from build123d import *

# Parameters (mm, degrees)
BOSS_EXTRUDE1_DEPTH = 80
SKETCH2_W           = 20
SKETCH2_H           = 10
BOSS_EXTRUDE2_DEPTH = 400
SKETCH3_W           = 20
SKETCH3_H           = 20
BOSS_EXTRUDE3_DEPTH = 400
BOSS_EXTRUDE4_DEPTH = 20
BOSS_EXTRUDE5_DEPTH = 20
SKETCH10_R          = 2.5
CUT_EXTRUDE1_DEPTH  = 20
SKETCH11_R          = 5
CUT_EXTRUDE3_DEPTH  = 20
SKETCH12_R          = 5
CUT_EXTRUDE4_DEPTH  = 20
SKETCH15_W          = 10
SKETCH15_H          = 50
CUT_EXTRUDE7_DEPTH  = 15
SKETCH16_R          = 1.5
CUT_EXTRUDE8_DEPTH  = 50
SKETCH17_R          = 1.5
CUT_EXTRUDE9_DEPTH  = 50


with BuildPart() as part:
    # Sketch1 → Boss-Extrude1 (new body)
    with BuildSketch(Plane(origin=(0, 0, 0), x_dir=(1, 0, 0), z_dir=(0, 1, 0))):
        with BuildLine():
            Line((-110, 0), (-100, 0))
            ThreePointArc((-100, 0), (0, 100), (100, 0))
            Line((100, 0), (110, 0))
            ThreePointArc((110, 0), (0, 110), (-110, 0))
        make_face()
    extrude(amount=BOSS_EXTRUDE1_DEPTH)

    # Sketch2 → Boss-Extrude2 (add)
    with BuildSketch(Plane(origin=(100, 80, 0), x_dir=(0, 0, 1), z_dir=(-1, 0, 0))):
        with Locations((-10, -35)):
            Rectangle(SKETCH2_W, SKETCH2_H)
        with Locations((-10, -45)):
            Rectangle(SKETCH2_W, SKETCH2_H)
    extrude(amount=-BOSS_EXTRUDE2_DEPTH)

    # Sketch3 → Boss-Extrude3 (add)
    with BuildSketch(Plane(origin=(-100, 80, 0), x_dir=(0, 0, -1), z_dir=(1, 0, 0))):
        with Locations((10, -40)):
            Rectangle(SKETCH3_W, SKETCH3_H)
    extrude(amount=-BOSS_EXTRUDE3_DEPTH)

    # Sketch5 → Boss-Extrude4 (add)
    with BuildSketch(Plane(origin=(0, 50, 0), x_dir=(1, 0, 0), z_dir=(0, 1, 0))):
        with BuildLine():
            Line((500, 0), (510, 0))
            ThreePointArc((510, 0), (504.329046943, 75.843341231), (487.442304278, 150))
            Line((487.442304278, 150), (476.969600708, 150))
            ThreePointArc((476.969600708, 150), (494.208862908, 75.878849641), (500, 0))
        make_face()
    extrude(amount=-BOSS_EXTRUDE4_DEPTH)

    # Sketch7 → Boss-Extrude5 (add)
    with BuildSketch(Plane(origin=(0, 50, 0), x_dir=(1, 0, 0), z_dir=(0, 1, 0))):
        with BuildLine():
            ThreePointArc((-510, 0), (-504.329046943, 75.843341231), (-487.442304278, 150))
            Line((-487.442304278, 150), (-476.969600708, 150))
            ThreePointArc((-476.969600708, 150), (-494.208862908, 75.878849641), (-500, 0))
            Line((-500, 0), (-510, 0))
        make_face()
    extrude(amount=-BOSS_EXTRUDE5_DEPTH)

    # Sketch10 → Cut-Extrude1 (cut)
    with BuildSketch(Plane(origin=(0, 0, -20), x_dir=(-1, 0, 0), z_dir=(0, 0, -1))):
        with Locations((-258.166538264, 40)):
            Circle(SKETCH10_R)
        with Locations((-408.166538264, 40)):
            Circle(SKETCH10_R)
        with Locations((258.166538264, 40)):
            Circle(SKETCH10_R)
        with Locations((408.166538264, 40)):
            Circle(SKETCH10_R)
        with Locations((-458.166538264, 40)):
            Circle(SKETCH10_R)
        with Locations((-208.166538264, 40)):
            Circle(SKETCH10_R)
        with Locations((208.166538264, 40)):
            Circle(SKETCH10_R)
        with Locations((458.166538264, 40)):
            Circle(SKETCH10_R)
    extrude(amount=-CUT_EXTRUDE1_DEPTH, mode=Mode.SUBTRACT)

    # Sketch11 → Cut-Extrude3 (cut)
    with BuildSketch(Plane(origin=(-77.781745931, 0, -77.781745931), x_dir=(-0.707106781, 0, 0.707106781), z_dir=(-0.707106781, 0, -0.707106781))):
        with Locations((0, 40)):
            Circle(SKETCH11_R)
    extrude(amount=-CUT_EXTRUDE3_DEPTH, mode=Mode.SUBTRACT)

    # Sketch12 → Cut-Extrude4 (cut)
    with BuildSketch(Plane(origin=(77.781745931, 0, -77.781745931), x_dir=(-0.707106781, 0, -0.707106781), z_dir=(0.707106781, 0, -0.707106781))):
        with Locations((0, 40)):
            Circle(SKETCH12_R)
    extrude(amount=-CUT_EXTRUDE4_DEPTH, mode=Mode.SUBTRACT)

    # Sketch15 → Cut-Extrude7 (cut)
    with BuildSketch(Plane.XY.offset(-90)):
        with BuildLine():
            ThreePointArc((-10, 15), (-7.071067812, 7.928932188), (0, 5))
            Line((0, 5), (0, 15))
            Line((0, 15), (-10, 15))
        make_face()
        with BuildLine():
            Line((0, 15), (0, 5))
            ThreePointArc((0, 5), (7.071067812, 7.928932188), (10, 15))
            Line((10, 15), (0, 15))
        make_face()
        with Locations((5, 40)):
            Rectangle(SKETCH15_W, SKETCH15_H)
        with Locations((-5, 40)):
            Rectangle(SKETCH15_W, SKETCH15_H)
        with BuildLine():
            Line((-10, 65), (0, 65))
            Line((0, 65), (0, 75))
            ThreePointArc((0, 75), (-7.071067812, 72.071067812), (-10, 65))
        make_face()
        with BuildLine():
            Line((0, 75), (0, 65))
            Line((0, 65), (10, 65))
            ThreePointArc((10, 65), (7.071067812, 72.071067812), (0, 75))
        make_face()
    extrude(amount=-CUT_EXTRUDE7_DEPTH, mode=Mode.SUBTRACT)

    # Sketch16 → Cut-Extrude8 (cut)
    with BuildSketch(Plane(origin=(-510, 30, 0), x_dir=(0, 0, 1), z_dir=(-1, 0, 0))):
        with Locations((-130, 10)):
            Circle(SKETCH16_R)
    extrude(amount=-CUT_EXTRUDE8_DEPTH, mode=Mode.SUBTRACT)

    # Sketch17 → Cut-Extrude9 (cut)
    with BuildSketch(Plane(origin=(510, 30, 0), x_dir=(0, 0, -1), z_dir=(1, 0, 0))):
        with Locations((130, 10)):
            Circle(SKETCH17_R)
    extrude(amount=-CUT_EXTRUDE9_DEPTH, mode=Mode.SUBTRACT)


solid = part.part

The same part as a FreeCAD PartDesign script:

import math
import FreeCAD as App
import Part
import Sketcher
from FreeCAD import Vector

doc = App.newDocument("Part")
body = doc.addObject("PartDesign::Body", "Body")

# Sketch on XZ plane
sketch1 = body.newObject("Sketcher::SketchObject", "Sketch")
sketch1.AttachmentSupport = (doc.getObject("XZ_Plane"), [""])
sketch1.MapMode = "FlatFace"
sketch1.addGeometry([
    Part.LineSegment(Vector(-110, 0, 0), Vector(-100, 0, 0)),
    Part.ArcOfCircle(Part.Circle(Vector(0, 0, 0), Vector(0, 0, 1), 100), math.radians(180), math.radians(360)),
    Part.LineSegment(Vector(100, 0, 0), Vector(110, 0, 0)),
    Part.ArcOfCircle(Part.Circle(Vector(0, 0, 0), Vector(0, 0, 1), 110), math.radians(180), math.radians(360)),
], False)
sketch1.addConstraint([
    Sketcher.Constraint("Coincident", 0, 2, 1, 1),
    Sketcher.Constraint("Coincident", 1, 2, 2, 1),
    Sketcher.Constraint("Coincident", 2, 2, 3, 2),
    Sketcher.Constraint("Coincident", 3, 1, 0, 1),
    Sketcher.Constraint("Horizontal", 0),
    Sketcher.Constraint("Horizontal", 2),
    Sketcher.Constraint("Coincident", 1, 3, -1, 1),
    Sketcher.Constraint("Coincident", 3, 3, -1, 1),
    Sketcher.Constraint("PointOnObject", 0, 2, -1),
    Sketcher.Constraint("PointOnObject", 1, 2, -1),
    Sketcher.Constraint("Radius", 1, 100.0),
    Sketcher.Constraint("Radius", 3, 110.0),
])
pad1 = body.newObject("PartDesign::Pad", "Pad")
pad1.Profile = sketch1
pad1.Length = 80
pad1.Reversed = True

# Sketch on YZ plane
sketch2 = body.newObject("Sketcher::SketchObject", "Sketch001")
sketch2.AttachmentSupport = (doc.getObject("YZ_Plane"), [""])
sketch2.MapMode = "FlatFace"
sketch2.AttachmentOffset = App.Placement(Vector(0, 0, 100), App.Rotation())
sketch2.addGeometry([
    Part.LineSegment(Vector(50, -20, 0), Vector(30, -20, 0)),
    Part.LineSegment(Vector(30, -20, 0), Vector(30, 0, 0)),
    Part.LineSegment(Vector(30, 0, 0), Vector(50, 0, 0)),
    Part.LineSegment(Vector(50, 0, 0), Vector(50, -20, 0)),
], False)
sketch2.addConstraint([
    Sketcher.Constraint("Coincident", 0, 2, 1, 1),
    Sketcher.Constraint("Coincident", 1, 2, 2, 1),
    Sketcher.Constraint("Coincident", 2, 2, 3, 1),
    Sketcher.Constraint("Coincident", 3, 2, 0, 1),
    Sketcher.Constraint("Horizontal", 0),
    Sketcher.Constraint("Vertical", 1),
    Sketcher.Constraint("Horizontal", 2),
    Sketcher.Constraint("Vertical", 3),
    Sketcher.Constraint("PointOnObject", 1, 2, -1),
    Sketcher.Constraint("Equal", 2, 1),
    Sketcher.Constraint("DistanceX", 0, 2, 0, 1, 20.0),
    Sketcher.Constraint("DistanceX", -1, 1, 0, 2, 30.0),
])
pad2 = body.newObject("PartDesign::Pad", "Pad001")
pad2.Profile = sketch2
pad2.Length = 400

# Sketch on YZ plane
sketch3 = body.newObject("Sketcher::SketchObject", "Sketch002")
sketch3.AttachmentSupport = (doc.getObject("YZ_Plane"), [""])
sketch3.MapMode = "FlatFace"
sketch3.AttachmentOffset = App.Placement(Vector(0, 0, -100), App.Rotation())
sketch3.addGeometry([
    Part.LineSegment(Vector(50, 0, 0), Vector(30, 0, 0)),
    Part.LineSegment(Vector(30, 0, 0), Vector(30, -20, 0)),
    Part.LineSegment(Vector(30, -20, 0), Vector(50, -20, 0)),
    Part.LineSegment(Vector(50, -20, 0), Vector(50, 0, 0)),
], False)
sketch3.addConstraint([
    Sketcher.Constraint("Coincident", 0, 2, 1, 1),
    Sketcher.Constraint("Coincident", 1, 2, 2, 1),
    Sketcher.Constraint("Coincident", 2, 2, 3, 1),
    Sketcher.Constraint("Coincident", 3, 2, 0, 1),
    Sketcher.Constraint("Horizontal", 0),
    Sketcher.Constraint("Vertical", 1),
    Sketcher.Constraint("Horizontal", 2),
    Sketcher.Constraint("Vertical", 3),
    Sketcher.Constraint("PointOnObject", 0, 2, -1),
    Sketcher.Constraint("Equal", 2, 1),
    Sketcher.Constraint("DistanceX", 0, 2, 0, 1, 20.0),
    Sketcher.Constraint("DistanceX", -1, 1, 0, 2, 30.0),
])
pad3 = body.newObject("PartDesign::Pad", "Pad002")
pad3.Profile = sketch3
pad3.Length = 400
pad3.Reversed = True

# Sketch on XZ plane
sketch4 = body.newObject("Sketcher::SketchObject", "Sketch003")
sketch4.AttachmentSupport = (doc.getObject("XZ_Plane"), [""])
sketch4.MapMode = "FlatFace"
sketch4.AttachmentOffset = App.Placement(Vector(0, 0, -50), App.Rotation())
sketch4.addGeometry([
    Part.LineSegment(Vector(500, 0, 0), Vector(510, 0, 0)),
    Part.ArcOfCircle(Part.Circle(Vector(0, 0, 0), Vector(0, 0, 1), 510), math.radians(-17.104635), math.radians(0)),
    Part.LineSegment(Vector(487.442304, -150, 0), Vector(476.969601, -150, 0)),
    Part.ArcOfCircle(Part.Circle(Vector(0, 0, 0), Vector(0, 0, 1), 500), math.radians(-17.457603), math.radians(0)),
], False)
sketch4.addConstraint([
    Sketcher.Constraint("Coincident", 0, 2, 1, 2),
    Sketcher.Constraint("Coincident", 1, 1, 2, 1),
    Sketcher.Constraint("Coincident", 2, 2, 3, 1),
    Sketcher.Constraint("Coincident", 3, 2, 0, 1),
    Sketcher.Constraint("Horizontal", 0),
    Sketcher.Constraint("Horizontal", 2),
    Sketcher.Constraint("Coincident", 1, 3, -1, 1),
    Sketcher.Constraint("Coincident", 3, 3, -1, 1),
    Sketcher.Constraint("PointOnObject", 0, 2, -1),
    Sketcher.Constraint("Radius", 1, 510.0),
    Sketcher.Constraint("Radius", 3, 500.0),
    Sketcher.Constraint("DistanceY", 2, 2, -1, 1, 150.0),
])
pad4 = body.newObject("PartDesign::Pad", "Pad003")
pad4.Profile = sketch4
pad4.Length = 20

# Sketch on XZ plane
sketch5 = body.newObject("Sketcher::SketchObject", "Sketch004")
sketch5.AttachmentSupport = (doc.getObject("XZ_Plane"), [""])
sketch5.MapMode = "FlatFace"
sketch5.AttachmentOffset = App.Placement(Vector(0, 0, -50), App.Rotation())
sketch5.addGeometry([
    Part.ArcOfCircle(Part.Circle(Vector(0, 0, 0), Vector(0, 0, 1), 510), math.radians(-180), math.radians(-162.895365)),
    Part.LineSegment(Vector(-510, 0, 0), Vector(-500, 0, 0)),
    Part.ArcOfCircle(Part.Circle(Vector(0, 0, 0), Vector(0, 0, 1), 500), math.radians(-180), math.radians(-162.542397)),
    Part.LineSegment(Vector(-476.969601, -150, 0), Vector(-487.442304, -150, 0)),
], False)
sketch5.addConstraint([
    Sketcher.Constraint("Coincident", 0, 1, 1, 1),
    Sketcher.Constraint("Coincident", 1, 2, 2, 1),
    Sketcher.Constraint("Coincident", 2, 2, 3, 1),
    Sketcher.Constraint("Coincident", 3, 2, 0, 2),
    Sketcher.Constraint("Horizontal", 1),
    Sketcher.Constraint("Horizontal", 3),
    Sketcher.Constraint("Coincident", 0, 3, -1, 1),
    Sketcher.Constraint("Coincident", 2, 3, -1, 1),
    Sketcher.Constraint("PointOnObject", 1, 2, -1),
    Sketcher.Constraint("Radius", 0, 510.0),
    Sketcher.Constraint("Radius", 2, 500.0),
    Sketcher.Constraint("DistanceY", 3, 2, -1, 1, 150.0),
])
pad5 = body.newObject("PartDesign::Pad", "Pad004")
pad5.Profile = sketch5
pad5.Length = 20

# Sketch on XY plane
sketch6 = body.newObject("Sketcher::SketchObject", "Sketch005")
sketch6.AttachmentSupport = (doc.getObject("XY_Plane"), [""])
sketch6.MapMode = "FlatFace"
sketch6.AttachmentOffset = App.Placement(Vector(0, 0, -20), App.Rotation())
sketch6.addGeometry([
    Part.Circle(Vector(258.166538, 40, 0), Vector(0, 0, 1), 2.5),  # 0
    Part.Circle(Vector(408.166538, 40, 0), Vector(0, 0, 1), 2.5),  # 1
    Part.Circle(Vector(-258.166538, 40, 0), Vector(0, 0, 1), 2.5),  # 2
    Part.Circle(Vector(-408.166538, 40, 0), Vector(0, 0, 1), 2.5),  # 3
    Part.Circle(Vector(458.166538, 40, 0), Vector(0, 0, 1), 2.5),  # 4
    Part.Circle(Vector(208.166538, 40, 0), Vector(0, 0, 1), 2.5),  # 5
    Part.Circle(Vector(-208.166538, 40, 0), Vector(0, 0, 1), 2.5),  # 6
    Part.Circle(Vector(-458.166538, 40, 0), Vector(0, 0, 1), 2.5),  # 7
], False)
sketch6.addConstraint([
    Sketcher.Constraint("Equal", 0, 1),
    Sketcher.Constraint("Equal", 1, 2),
    Sketcher.Constraint("Equal", 2, 3),
    Sketcher.Constraint("Equal", 3, 4),
    Sketcher.Constraint("Equal", 4, 5),
    Sketcher.Constraint("Equal", 5, 6),
    Sketcher.Constraint("Equal", 6, 7),
    Sketcher.Constraint("Symmetric", 0, 3, 2, 3, -2),
    Sketcher.Constraint("Symmetric", 1, 3, 3, 3, -2),
    Sketcher.Constraint("Symmetric", 5, 3, 6, 3, -2),
    Sketcher.Constraint("Symmetric", 4, 3, 7, 3, -2),
    Sketcher.Constraint("Horizontal", 0, 3, 1, 3),
    Sketcher.Constraint("Horizontal", 3, 3, 4, 3),
    Sketcher.Constraint("Horizontal", 4, 3, 5, 3),
    Sketcher.Constraint("Diameter", 0, 5.0),
    Sketcher.Constraint("DistanceY", -1, 1, 0, 3, 40.0),
    Sketcher.Constraint("DistanceX", 0, 3, 1, 3, 150.0),
    Sketcher.Constraint("DistanceX", 1, 3, 4, 3, 50.0),
    Sketcher.Constraint("DistanceX", 5, 3, 0, 3, 50.0),
    Sketcher.Constraint("DistanceX", -1, 1, 0, 3, 258.166538),
])
pocket1 = body.newObject("PartDesign::Pocket", "Pocket")
pocket1.Profile = sketch6
pocket1.Length = 20
pocket1.Reversed = True

# Sketch on an angled plane
sketch7 = body.newObject("Sketcher::SketchObject", "Sketch006")
sketch7.Placement = App.Placement(Vector(-77.781746, 0, -77.781746), App.Rotation(Vector(-0.707106781, 0, 0.707106781), Vector(0, 0.999999999, 0), Vector(-0.707106781, 0, -0.707106781), "ZXY"))
sketch7.addGeometry(Part.Circle(Vector(0, 40, 0), Vector(0, 0, 1), 5), False)
sketch7.addConstraint([
    Sketcher.Constraint("PointOnObject", 0, 3, -2),
    Sketcher.Constraint("Diameter", 0, 10.0),
    Sketcher.Constraint("DistanceY", -1, 1, 0, 3, 40.0),
])
pocket2 = body.newObject("PartDesign::Pocket", "Pocket001")
pocket2.Profile = sketch7
pocket2.Length = 20

# Sketch on an angled plane
sketch8 = body.newObject("Sketcher::SketchObject", "Sketch007")
sketch8.Placement = App.Placement(Vector(77.781746, 0, -77.781746), App.Rotation(Vector(-0.707106781, 0, -0.707106781), Vector(0, 0.999999999, 0), Vector(0.707106781, 0, -0.707106781), "ZXY"))
sketch8.addGeometry(Part.Circle(Vector(0, 40, 0), Vector(0, 0, 1), 5), False)
sketch8.addConstraint([
    Sketcher.Constraint("PointOnObject", 0, 3, -2),
    Sketcher.Constraint("Diameter", 0, 10.0),
    Sketcher.Constraint("DistanceY", -1, 1, 0, 3, 40.0),
])
pocket3 = body.newObject("PartDesign::Pocket", "Pocket002")
pocket3.Profile = sketch8
pocket3.Length = 20

# Sketch on XY plane
sketch9 = body.newObject("Sketcher::SketchObject", "Sketch008")
sketch9.AttachmentSupport = (doc.getObject("XY_Plane"), [""])
sketch9.MapMode = "FlatFace"
sketch9.AttachmentOffset = App.Placement(Vector(0, 0, -90), App.Rotation())
sketch9.addGeometry([
    Part.LineSegment(Vector(-10, 65, 0), Vector(-10, 15, 0)),  # 0
    Part.ArcOfCircle(Part.Circle(Vector(0, 15, 0), Vector(0, 0, 1), 10), math.radians(180), math.radians(270)),  # 1
    Part.ArcOfCircle(Part.Circle(Vector(0, 15, 0), Vector(0, 0, 1), 10), math.radians(-90), math.radians(0)),  # 2
    Part.LineSegment(Vector(10, 15, 0), Vector(10, 65, 0)),  # 3
    Part.ArcOfCircle(Part.Circle(Vector(0, 65, 0), Vector(0, 0, 1), 10), math.radians(0), math.radians(90)),  # 4
    Part.ArcOfCircle(Part.Circle(Vector(0, 65, 0), Vector(0, 0, 1), 10), math.radians(90), math.radians(180)),  # 5
], False)
sketch9.addConstraint([
    Sketcher.Constraint("Tangent", 0, 2, 1, 1),
    Sketcher.Constraint("Tangent", 1, 2, 2, 1),
    Sketcher.Constraint("Tangent", 2, 2, 3, 1),
    Sketcher.Constraint("Tangent", 3, 2, 4, 1),
    Sketcher.Constraint("Tangent", 4, 2, 5, 1),
    Sketcher.Constraint("Tangent", 5, 2, 0, 1),
    Sketcher.Constraint("Vertical", 0),
    Sketcher.Constraint("Vertical", 3),
    Sketcher.Constraint("Equal", 1, 2),
    Sketcher.Constraint("Equal", 2, 4),
    Sketcher.Constraint("PointOnObject", 1, 3, -2),
    Sketcher.Constraint("PointOnObject", 1, 2, -2),
    Sketcher.Constraint("PointOnObject", 4, 2, -2),
    Sketcher.Constraint("Radius", 1, 10.0),
    Sketcher.Constraint("DistanceY", 0, 2, 0, 1, 50.0),
    Sketcher.Constraint("DistanceY", -1, 1, 1, 3, 15.0),
])
pocket4 = body.newObject("PartDesign::Pocket", "Pocket003")
pocket4.Profile = sketch9
pocket4.Length = 15

# Sketch on YZ plane
sketch10 = body.newObject("Sketcher::SketchObject", "Sketch009")
sketch10.AttachmentSupport = (doc.getObject("YZ_Plane"), [""])
sketch10.MapMode = "FlatFace"
sketch10.AttachmentOffset = App.Placement(Vector(0, 0, -510), App.Rotation())
sketch10.addGeometry(Part.Circle(Vector(40, -130, 0), Vector(0, 0, 1), 1.5), False)
sketch10.addConstraint([
    Sketcher.Constraint("Diameter", 0, 3.0),
    Sketcher.Constraint("DistanceX", -1, 1, 0, 3, 40.0),
    Sketcher.Constraint("DistanceY", 0, 3, -1, 1, 130.0),
])
pocket5 = body.newObject("PartDesign::Pocket", "Pocket004")
pocket5.Profile = sketch10
pocket5.Length = 50
pocket5.Reversed = True

# Sketch on YZ plane
sketch11 = body.newObject("Sketcher::SketchObject", "Sketch010")
sketch11.AttachmentSupport = (doc.getObject("YZ_Plane"), [""])
sketch11.MapMode = "FlatFace"
sketch11.AttachmentOffset = App.Placement(Vector(0, 0, 510), App.Rotation())
sketch11.addGeometry(Part.Circle(Vector(40, -130, 0), Vector(0, 0, 1), 1.5), False)
sketch11.addConstraint([
    Sketcher.Constraint("Diameter", 0, 3.0),
    Sketcher.Constraint("DistanceX", -1, 1, 0, 3, 40.0),
    Sketcher.Constraint("DistanceY", 0, 3, -1, 1, 130.0),
])
pocket6 = body.newObject("PartDesign::Pocket", "Pocket005")
pocket6.Profile = sketch11
pocket6.Length = 50

doc.recompute()
